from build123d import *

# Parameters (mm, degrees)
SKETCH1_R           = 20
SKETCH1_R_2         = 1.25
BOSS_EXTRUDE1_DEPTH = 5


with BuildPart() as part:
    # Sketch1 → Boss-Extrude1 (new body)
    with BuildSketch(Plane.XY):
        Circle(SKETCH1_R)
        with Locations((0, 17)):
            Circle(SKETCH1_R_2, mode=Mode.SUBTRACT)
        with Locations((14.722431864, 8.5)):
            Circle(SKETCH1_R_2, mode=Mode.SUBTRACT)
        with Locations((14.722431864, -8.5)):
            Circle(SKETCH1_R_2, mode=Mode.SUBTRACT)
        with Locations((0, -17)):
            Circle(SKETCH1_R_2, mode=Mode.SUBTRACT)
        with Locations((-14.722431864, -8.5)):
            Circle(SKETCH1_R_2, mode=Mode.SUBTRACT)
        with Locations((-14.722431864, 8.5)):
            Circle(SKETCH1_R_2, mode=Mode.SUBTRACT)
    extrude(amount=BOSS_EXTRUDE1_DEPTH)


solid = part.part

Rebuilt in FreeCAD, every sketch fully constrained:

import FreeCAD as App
import Part
import Sketcher

doc = App.newDocument("Part")
body = doc.addObject("PartDesign::Body", "Body")

sketch1 = doc.addObject("Sketcher::SketchObject", "Sketch")
body.addObject(sketch1)
sketch1.AttachmentSupport = (doc.XY_Plane, [""])
sketch1.MapMode = "FlatFace"
sketch1.addGeometry([
    Part.Circle(App.Vector(0, 0, 0), App.Vector(0, 0, 1), 20),
    Part.Circle(App.Vector(0, -17, 0), App.Vector(0, 0, 1), 1.25),
    Part.Circle(App.Vector(-14.722432, -8.5, 0), App.Vector(0, 0, 1), 1.25),
    Part.Circle(App.Vector(14.722432, -8.5, 0), App.Vector(0, 0, 1), 1.25),
    Part.Circle(App.Vector(-14.722432, 8.5, 0), App.Vector(0, 0, 1), 1.25),
    Part.Circle(App.Vector(0, 17, 0), App.Vector(0, 0, 1), 1.25),
    Part.Circle(App.Vector(14.722432, 8.5, 0), App.Vector(0, 0, 1), 1.25),
], False)
sketch1.addConstraint([
    Sketcher.Constraint("Coincident", 0, 3, -1, 1),
    Sketcher.Constraint("Equal", 1, 2),
    Sketcher.Constraint("Equal", 2, 3),
    Sketcher.Constraint("Equal", 3, 4),
    Sketcher.Constraint("Equal", 4, 5),
    Sketcher.Constraint("Equal", 5, 6),
    Sketcher.Constraint("Symmetric", 3, 3, 4, 3, -1, 1),
    Sketcher.Constraint("Symmetric", 1, 3, 5, 3, -1, 1),
    Sketcher.Constraint("Symmetric", 2, 3, 6, 3, -1, 1),
    Sketcher.Constraint("Symmetric", 2, 3, 3, 3, -2),
    Sketcher.Constraint("PointOnObject", 1, 3, -2),
    Sketcher.Constraint("Diameter", 0, 40.0),
    Sketcher.Constraint("Diameter", 1, 2.5),
    Sketcher.Constraint("DistanceY", 1, 3, -1, 1, 17.0),
    Sketcher.Constraint("DistanceY", 2, 3, 4, 3, 17.0),
    Sketcher.Constraint("DistanceX", 2, 3, -1, 1, 14.722432),
])
pad1 = doc.addObject("PartDesign::Pad", "Pad")
body.addObject(pad1)
pad1.Profile = sketch1
pad1.Length = 5

doc.recompute()
